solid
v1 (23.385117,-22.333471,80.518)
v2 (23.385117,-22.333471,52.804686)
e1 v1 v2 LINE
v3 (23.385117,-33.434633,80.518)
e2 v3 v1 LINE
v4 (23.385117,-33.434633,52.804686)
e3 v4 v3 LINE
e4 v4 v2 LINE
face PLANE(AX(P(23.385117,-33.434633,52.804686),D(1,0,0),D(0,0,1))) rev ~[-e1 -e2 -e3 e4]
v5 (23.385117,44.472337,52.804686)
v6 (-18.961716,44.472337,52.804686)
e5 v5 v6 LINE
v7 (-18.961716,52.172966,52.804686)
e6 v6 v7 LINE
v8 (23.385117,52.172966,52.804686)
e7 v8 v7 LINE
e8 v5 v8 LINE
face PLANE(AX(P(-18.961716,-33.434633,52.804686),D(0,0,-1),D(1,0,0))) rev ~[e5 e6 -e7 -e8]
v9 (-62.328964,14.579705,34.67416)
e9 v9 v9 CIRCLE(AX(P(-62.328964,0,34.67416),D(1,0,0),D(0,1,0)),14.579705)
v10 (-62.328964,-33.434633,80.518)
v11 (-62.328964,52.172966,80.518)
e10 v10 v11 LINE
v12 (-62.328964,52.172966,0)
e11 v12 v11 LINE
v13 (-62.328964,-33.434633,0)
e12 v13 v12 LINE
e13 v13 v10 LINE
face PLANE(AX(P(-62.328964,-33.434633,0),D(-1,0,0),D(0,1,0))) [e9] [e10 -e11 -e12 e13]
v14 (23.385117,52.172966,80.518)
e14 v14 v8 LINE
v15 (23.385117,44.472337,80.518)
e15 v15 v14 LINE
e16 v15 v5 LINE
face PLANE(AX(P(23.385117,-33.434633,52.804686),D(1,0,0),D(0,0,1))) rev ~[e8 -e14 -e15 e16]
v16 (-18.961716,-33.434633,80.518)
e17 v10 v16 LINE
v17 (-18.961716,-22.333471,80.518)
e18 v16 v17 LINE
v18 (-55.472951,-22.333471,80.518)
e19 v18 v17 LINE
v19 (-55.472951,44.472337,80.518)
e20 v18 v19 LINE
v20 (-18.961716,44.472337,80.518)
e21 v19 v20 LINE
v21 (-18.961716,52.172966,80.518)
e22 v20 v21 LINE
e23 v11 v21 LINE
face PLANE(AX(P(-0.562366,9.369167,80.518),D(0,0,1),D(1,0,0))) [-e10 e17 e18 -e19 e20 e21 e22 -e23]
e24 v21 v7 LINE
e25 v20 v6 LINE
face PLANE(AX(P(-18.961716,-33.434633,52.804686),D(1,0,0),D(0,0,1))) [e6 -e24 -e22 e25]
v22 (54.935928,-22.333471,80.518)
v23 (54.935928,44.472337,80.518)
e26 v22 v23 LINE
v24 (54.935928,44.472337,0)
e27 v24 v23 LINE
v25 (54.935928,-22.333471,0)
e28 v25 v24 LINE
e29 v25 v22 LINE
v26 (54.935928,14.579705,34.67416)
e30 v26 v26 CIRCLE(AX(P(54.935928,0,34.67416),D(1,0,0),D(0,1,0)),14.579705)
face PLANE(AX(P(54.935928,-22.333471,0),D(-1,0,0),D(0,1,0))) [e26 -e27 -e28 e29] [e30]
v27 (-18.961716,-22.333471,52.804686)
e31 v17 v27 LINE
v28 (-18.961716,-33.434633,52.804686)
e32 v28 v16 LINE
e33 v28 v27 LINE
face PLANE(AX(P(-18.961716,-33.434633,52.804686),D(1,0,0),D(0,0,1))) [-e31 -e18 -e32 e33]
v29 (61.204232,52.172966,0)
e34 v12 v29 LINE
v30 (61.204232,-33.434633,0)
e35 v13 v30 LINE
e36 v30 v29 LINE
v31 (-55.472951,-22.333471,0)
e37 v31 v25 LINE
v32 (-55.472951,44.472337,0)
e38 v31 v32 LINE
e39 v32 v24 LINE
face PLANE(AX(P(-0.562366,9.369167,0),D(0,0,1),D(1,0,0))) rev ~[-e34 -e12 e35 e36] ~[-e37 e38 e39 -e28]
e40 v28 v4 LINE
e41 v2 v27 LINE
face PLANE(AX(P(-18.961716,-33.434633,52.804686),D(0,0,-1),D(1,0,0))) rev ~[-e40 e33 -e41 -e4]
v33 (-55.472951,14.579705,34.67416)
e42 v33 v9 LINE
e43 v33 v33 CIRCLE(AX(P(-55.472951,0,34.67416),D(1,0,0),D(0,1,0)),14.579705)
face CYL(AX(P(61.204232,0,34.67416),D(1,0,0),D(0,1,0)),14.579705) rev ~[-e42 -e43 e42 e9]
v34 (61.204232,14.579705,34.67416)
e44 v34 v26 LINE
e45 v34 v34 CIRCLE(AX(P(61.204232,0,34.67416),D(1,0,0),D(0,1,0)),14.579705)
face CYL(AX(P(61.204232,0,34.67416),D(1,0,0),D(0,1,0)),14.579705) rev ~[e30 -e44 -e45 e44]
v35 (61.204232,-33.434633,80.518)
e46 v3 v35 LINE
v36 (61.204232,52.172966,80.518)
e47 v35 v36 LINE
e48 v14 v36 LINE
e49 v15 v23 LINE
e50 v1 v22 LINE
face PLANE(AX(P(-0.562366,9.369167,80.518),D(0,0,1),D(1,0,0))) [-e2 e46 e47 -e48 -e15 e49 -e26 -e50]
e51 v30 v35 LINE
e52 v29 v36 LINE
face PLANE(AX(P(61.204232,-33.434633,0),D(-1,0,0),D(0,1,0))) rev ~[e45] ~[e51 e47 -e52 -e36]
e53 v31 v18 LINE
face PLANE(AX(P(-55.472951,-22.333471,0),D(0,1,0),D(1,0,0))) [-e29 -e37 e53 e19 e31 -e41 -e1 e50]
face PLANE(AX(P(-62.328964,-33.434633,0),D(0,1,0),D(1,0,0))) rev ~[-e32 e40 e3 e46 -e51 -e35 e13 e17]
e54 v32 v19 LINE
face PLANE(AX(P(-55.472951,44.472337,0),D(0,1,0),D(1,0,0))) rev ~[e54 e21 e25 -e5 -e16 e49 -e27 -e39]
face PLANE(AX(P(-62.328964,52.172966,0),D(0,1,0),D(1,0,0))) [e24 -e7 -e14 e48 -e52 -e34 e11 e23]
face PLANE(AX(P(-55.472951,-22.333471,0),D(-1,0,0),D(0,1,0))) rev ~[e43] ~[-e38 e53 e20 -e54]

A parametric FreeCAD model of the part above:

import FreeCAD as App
import Part
import Sketcher
Q = App.Units.Quantity


def add_polygon(sketch, points):
    """Adds a closed chain of lines whose ends are joined by coincident constraints."""
    first, n = sketch.GeometryCount, len(points)
    for a, b in zip(points, points[1:] + points[:1]):
        sketch.addGeometry(Part.LineSegment(App.Vector(*a, 0), App.Vector(*b, 0)), False)
    for i in range(n):
        sketch.addConstraint(Sketcher.Constraint("Coincident", first + i, 2, first + (i + 1) % n, 1))

doc = App.newDocument("Part")
body = doc.addObject("PartDesign::Body", "Body")

# Sketch on XY plane
sketch1 = body.newObject("Sketcher::SketchObject", "Sketch")
sketch1.AttachmentSupport = (doc.getObject("XY_Plane"), [""])
sketch1.MapMode = "FlatFace"
add_polygon(sketch1, [(-62, 52), (-62, -33), (61, -33), (61, 52)])  # lines 0-3
add_polygon(sketch1, [(55, -22), (-55, -22), (-55, 44), (55, 44)])  # lines 4-7
sketch1.addConstraint([
    Sketcher.Constraint("Vertical", 0),
    Sketcher.Constraint("Horizontal", 1),
    Sketcher.Constraint("Vertical", 2),
    Sketcher.Constraint("Horizontal", 3),
    Sketcher.Constraint("Horizontal", 4),
    Sketcher.Constraint("Vertical", 5),
    Sketcher.Constraint("Horizontal", 6),
    Sketcher.Constraint("Vertical", 7),
    Sketcher.Constraint("DistanceY", 0, 2, 0, 1, Q("85.607599 mm")),
    Sketcher.Constraint("DistanceX", 4, 2, 4, 1, Q("110.40888 mm")),
    Sketcher.Constraint("DistanceX", 1, 1, 1, 2, Q("123.533197 mm")),
    Sketcher.Constraint("DistanceY", 5, 1, 5, 2, Q("66.805808 mm")),
    Sketcher.Constraint("DistanceX", 4, 2, -1, 1, Q("55.472951 mm")),
    Sketcher.Constraint("DistanceY", 4, 2, -1, 1, Q("22.333471 mm")),
    Sketcher.Constraint("DistanceY", 5, 2, 3, 2, Q("7.70063 mm")),
    Sketcher.Constraint("DistanceX", 0, 2, -1, 1, Q("62.328964 mm")),
])
pad1 = body.newObject("PartDesign::Pad", "Pad")
pad1.Profile = sketch1
pad1.Length = Q("3.17 in")

# Sketch on XZ plane
sketch2 = body.newObject("Sketcher::SketchObject", "Sketch001")
sketch2.AttachmentSupport = (doc.getObject("XZ_Plane"), [""])
sketch2.MapMode = "FlatFace"
sketch2.AttachmentOffset = App.Placement(App.Vector(0, 0, 33.434633), App.Rotation())
add_polygon(sketch2, [(-19, 81), (-19, 53), (23, 53), (23, 81)])  # lines 0-3
sketch2.addConstraint([
    Sketcher.Constraint("Vertical", 0),
    Sketcher.Constraint("Horizontal", 1),
    Sketcher.Constraint("Vertical", 2),
    Sketcher.Constraint("Horizontal", 3),
    Sketcher.Constraint("DistanceY", -1, 1, 2, 2, Q("3.17 in")),
    Sketcher.Constraint("DistanceX", 1, 1, 1, 2, Q("42.346833 mm")),
    Sketcher.Constraint("DistanceY", 0, 2, 0, 1, Q("27.713314 mm")),
    Sketcher.Constraint("DistanceX", 0, 2, -1, 1, Q("18.961716 mm")),
])
pocket1 = body.newObject("PartDesign::Pocket", "Pocket")
pocket1.Profile = sketch2
pocket1.Type = "ThroughAll"

# Sketch on YZ plane
sketch3 = body.newObject("Sketcher::SketchObject", "Sketch002")
sketch3.AttachmentSupport = (doc.getObject("YZ_Plane"), [""])
sketch3.MapMode = "FlatFace"
sketch3.AttachmentOffset = App.Placement(App.Vector(0, 0, 61.204232), App.Rotation())
sketch3.addGeometry(Part.Circle(App.Vector(0, 35, 0), App.Vector(0, 0, 1), 15), False)
sketch3.addConstraint([
    Sketcher.Constraint("PointOnObject", 0, 3, -2),
    Sketcher.Constraint("Diameter", 0, Q("29.15941 mm")),
    Sketcher.Constraint("DistanceY", -1, 1, 0, 3, Q("34.67416 mm")),
])
pocket2 = body.newObject("PartDesign::Pocket", "Pocket001")
pocket2.Profile = sketch3
pocket2.Type = "ThroughAll"

doc.recompute()
